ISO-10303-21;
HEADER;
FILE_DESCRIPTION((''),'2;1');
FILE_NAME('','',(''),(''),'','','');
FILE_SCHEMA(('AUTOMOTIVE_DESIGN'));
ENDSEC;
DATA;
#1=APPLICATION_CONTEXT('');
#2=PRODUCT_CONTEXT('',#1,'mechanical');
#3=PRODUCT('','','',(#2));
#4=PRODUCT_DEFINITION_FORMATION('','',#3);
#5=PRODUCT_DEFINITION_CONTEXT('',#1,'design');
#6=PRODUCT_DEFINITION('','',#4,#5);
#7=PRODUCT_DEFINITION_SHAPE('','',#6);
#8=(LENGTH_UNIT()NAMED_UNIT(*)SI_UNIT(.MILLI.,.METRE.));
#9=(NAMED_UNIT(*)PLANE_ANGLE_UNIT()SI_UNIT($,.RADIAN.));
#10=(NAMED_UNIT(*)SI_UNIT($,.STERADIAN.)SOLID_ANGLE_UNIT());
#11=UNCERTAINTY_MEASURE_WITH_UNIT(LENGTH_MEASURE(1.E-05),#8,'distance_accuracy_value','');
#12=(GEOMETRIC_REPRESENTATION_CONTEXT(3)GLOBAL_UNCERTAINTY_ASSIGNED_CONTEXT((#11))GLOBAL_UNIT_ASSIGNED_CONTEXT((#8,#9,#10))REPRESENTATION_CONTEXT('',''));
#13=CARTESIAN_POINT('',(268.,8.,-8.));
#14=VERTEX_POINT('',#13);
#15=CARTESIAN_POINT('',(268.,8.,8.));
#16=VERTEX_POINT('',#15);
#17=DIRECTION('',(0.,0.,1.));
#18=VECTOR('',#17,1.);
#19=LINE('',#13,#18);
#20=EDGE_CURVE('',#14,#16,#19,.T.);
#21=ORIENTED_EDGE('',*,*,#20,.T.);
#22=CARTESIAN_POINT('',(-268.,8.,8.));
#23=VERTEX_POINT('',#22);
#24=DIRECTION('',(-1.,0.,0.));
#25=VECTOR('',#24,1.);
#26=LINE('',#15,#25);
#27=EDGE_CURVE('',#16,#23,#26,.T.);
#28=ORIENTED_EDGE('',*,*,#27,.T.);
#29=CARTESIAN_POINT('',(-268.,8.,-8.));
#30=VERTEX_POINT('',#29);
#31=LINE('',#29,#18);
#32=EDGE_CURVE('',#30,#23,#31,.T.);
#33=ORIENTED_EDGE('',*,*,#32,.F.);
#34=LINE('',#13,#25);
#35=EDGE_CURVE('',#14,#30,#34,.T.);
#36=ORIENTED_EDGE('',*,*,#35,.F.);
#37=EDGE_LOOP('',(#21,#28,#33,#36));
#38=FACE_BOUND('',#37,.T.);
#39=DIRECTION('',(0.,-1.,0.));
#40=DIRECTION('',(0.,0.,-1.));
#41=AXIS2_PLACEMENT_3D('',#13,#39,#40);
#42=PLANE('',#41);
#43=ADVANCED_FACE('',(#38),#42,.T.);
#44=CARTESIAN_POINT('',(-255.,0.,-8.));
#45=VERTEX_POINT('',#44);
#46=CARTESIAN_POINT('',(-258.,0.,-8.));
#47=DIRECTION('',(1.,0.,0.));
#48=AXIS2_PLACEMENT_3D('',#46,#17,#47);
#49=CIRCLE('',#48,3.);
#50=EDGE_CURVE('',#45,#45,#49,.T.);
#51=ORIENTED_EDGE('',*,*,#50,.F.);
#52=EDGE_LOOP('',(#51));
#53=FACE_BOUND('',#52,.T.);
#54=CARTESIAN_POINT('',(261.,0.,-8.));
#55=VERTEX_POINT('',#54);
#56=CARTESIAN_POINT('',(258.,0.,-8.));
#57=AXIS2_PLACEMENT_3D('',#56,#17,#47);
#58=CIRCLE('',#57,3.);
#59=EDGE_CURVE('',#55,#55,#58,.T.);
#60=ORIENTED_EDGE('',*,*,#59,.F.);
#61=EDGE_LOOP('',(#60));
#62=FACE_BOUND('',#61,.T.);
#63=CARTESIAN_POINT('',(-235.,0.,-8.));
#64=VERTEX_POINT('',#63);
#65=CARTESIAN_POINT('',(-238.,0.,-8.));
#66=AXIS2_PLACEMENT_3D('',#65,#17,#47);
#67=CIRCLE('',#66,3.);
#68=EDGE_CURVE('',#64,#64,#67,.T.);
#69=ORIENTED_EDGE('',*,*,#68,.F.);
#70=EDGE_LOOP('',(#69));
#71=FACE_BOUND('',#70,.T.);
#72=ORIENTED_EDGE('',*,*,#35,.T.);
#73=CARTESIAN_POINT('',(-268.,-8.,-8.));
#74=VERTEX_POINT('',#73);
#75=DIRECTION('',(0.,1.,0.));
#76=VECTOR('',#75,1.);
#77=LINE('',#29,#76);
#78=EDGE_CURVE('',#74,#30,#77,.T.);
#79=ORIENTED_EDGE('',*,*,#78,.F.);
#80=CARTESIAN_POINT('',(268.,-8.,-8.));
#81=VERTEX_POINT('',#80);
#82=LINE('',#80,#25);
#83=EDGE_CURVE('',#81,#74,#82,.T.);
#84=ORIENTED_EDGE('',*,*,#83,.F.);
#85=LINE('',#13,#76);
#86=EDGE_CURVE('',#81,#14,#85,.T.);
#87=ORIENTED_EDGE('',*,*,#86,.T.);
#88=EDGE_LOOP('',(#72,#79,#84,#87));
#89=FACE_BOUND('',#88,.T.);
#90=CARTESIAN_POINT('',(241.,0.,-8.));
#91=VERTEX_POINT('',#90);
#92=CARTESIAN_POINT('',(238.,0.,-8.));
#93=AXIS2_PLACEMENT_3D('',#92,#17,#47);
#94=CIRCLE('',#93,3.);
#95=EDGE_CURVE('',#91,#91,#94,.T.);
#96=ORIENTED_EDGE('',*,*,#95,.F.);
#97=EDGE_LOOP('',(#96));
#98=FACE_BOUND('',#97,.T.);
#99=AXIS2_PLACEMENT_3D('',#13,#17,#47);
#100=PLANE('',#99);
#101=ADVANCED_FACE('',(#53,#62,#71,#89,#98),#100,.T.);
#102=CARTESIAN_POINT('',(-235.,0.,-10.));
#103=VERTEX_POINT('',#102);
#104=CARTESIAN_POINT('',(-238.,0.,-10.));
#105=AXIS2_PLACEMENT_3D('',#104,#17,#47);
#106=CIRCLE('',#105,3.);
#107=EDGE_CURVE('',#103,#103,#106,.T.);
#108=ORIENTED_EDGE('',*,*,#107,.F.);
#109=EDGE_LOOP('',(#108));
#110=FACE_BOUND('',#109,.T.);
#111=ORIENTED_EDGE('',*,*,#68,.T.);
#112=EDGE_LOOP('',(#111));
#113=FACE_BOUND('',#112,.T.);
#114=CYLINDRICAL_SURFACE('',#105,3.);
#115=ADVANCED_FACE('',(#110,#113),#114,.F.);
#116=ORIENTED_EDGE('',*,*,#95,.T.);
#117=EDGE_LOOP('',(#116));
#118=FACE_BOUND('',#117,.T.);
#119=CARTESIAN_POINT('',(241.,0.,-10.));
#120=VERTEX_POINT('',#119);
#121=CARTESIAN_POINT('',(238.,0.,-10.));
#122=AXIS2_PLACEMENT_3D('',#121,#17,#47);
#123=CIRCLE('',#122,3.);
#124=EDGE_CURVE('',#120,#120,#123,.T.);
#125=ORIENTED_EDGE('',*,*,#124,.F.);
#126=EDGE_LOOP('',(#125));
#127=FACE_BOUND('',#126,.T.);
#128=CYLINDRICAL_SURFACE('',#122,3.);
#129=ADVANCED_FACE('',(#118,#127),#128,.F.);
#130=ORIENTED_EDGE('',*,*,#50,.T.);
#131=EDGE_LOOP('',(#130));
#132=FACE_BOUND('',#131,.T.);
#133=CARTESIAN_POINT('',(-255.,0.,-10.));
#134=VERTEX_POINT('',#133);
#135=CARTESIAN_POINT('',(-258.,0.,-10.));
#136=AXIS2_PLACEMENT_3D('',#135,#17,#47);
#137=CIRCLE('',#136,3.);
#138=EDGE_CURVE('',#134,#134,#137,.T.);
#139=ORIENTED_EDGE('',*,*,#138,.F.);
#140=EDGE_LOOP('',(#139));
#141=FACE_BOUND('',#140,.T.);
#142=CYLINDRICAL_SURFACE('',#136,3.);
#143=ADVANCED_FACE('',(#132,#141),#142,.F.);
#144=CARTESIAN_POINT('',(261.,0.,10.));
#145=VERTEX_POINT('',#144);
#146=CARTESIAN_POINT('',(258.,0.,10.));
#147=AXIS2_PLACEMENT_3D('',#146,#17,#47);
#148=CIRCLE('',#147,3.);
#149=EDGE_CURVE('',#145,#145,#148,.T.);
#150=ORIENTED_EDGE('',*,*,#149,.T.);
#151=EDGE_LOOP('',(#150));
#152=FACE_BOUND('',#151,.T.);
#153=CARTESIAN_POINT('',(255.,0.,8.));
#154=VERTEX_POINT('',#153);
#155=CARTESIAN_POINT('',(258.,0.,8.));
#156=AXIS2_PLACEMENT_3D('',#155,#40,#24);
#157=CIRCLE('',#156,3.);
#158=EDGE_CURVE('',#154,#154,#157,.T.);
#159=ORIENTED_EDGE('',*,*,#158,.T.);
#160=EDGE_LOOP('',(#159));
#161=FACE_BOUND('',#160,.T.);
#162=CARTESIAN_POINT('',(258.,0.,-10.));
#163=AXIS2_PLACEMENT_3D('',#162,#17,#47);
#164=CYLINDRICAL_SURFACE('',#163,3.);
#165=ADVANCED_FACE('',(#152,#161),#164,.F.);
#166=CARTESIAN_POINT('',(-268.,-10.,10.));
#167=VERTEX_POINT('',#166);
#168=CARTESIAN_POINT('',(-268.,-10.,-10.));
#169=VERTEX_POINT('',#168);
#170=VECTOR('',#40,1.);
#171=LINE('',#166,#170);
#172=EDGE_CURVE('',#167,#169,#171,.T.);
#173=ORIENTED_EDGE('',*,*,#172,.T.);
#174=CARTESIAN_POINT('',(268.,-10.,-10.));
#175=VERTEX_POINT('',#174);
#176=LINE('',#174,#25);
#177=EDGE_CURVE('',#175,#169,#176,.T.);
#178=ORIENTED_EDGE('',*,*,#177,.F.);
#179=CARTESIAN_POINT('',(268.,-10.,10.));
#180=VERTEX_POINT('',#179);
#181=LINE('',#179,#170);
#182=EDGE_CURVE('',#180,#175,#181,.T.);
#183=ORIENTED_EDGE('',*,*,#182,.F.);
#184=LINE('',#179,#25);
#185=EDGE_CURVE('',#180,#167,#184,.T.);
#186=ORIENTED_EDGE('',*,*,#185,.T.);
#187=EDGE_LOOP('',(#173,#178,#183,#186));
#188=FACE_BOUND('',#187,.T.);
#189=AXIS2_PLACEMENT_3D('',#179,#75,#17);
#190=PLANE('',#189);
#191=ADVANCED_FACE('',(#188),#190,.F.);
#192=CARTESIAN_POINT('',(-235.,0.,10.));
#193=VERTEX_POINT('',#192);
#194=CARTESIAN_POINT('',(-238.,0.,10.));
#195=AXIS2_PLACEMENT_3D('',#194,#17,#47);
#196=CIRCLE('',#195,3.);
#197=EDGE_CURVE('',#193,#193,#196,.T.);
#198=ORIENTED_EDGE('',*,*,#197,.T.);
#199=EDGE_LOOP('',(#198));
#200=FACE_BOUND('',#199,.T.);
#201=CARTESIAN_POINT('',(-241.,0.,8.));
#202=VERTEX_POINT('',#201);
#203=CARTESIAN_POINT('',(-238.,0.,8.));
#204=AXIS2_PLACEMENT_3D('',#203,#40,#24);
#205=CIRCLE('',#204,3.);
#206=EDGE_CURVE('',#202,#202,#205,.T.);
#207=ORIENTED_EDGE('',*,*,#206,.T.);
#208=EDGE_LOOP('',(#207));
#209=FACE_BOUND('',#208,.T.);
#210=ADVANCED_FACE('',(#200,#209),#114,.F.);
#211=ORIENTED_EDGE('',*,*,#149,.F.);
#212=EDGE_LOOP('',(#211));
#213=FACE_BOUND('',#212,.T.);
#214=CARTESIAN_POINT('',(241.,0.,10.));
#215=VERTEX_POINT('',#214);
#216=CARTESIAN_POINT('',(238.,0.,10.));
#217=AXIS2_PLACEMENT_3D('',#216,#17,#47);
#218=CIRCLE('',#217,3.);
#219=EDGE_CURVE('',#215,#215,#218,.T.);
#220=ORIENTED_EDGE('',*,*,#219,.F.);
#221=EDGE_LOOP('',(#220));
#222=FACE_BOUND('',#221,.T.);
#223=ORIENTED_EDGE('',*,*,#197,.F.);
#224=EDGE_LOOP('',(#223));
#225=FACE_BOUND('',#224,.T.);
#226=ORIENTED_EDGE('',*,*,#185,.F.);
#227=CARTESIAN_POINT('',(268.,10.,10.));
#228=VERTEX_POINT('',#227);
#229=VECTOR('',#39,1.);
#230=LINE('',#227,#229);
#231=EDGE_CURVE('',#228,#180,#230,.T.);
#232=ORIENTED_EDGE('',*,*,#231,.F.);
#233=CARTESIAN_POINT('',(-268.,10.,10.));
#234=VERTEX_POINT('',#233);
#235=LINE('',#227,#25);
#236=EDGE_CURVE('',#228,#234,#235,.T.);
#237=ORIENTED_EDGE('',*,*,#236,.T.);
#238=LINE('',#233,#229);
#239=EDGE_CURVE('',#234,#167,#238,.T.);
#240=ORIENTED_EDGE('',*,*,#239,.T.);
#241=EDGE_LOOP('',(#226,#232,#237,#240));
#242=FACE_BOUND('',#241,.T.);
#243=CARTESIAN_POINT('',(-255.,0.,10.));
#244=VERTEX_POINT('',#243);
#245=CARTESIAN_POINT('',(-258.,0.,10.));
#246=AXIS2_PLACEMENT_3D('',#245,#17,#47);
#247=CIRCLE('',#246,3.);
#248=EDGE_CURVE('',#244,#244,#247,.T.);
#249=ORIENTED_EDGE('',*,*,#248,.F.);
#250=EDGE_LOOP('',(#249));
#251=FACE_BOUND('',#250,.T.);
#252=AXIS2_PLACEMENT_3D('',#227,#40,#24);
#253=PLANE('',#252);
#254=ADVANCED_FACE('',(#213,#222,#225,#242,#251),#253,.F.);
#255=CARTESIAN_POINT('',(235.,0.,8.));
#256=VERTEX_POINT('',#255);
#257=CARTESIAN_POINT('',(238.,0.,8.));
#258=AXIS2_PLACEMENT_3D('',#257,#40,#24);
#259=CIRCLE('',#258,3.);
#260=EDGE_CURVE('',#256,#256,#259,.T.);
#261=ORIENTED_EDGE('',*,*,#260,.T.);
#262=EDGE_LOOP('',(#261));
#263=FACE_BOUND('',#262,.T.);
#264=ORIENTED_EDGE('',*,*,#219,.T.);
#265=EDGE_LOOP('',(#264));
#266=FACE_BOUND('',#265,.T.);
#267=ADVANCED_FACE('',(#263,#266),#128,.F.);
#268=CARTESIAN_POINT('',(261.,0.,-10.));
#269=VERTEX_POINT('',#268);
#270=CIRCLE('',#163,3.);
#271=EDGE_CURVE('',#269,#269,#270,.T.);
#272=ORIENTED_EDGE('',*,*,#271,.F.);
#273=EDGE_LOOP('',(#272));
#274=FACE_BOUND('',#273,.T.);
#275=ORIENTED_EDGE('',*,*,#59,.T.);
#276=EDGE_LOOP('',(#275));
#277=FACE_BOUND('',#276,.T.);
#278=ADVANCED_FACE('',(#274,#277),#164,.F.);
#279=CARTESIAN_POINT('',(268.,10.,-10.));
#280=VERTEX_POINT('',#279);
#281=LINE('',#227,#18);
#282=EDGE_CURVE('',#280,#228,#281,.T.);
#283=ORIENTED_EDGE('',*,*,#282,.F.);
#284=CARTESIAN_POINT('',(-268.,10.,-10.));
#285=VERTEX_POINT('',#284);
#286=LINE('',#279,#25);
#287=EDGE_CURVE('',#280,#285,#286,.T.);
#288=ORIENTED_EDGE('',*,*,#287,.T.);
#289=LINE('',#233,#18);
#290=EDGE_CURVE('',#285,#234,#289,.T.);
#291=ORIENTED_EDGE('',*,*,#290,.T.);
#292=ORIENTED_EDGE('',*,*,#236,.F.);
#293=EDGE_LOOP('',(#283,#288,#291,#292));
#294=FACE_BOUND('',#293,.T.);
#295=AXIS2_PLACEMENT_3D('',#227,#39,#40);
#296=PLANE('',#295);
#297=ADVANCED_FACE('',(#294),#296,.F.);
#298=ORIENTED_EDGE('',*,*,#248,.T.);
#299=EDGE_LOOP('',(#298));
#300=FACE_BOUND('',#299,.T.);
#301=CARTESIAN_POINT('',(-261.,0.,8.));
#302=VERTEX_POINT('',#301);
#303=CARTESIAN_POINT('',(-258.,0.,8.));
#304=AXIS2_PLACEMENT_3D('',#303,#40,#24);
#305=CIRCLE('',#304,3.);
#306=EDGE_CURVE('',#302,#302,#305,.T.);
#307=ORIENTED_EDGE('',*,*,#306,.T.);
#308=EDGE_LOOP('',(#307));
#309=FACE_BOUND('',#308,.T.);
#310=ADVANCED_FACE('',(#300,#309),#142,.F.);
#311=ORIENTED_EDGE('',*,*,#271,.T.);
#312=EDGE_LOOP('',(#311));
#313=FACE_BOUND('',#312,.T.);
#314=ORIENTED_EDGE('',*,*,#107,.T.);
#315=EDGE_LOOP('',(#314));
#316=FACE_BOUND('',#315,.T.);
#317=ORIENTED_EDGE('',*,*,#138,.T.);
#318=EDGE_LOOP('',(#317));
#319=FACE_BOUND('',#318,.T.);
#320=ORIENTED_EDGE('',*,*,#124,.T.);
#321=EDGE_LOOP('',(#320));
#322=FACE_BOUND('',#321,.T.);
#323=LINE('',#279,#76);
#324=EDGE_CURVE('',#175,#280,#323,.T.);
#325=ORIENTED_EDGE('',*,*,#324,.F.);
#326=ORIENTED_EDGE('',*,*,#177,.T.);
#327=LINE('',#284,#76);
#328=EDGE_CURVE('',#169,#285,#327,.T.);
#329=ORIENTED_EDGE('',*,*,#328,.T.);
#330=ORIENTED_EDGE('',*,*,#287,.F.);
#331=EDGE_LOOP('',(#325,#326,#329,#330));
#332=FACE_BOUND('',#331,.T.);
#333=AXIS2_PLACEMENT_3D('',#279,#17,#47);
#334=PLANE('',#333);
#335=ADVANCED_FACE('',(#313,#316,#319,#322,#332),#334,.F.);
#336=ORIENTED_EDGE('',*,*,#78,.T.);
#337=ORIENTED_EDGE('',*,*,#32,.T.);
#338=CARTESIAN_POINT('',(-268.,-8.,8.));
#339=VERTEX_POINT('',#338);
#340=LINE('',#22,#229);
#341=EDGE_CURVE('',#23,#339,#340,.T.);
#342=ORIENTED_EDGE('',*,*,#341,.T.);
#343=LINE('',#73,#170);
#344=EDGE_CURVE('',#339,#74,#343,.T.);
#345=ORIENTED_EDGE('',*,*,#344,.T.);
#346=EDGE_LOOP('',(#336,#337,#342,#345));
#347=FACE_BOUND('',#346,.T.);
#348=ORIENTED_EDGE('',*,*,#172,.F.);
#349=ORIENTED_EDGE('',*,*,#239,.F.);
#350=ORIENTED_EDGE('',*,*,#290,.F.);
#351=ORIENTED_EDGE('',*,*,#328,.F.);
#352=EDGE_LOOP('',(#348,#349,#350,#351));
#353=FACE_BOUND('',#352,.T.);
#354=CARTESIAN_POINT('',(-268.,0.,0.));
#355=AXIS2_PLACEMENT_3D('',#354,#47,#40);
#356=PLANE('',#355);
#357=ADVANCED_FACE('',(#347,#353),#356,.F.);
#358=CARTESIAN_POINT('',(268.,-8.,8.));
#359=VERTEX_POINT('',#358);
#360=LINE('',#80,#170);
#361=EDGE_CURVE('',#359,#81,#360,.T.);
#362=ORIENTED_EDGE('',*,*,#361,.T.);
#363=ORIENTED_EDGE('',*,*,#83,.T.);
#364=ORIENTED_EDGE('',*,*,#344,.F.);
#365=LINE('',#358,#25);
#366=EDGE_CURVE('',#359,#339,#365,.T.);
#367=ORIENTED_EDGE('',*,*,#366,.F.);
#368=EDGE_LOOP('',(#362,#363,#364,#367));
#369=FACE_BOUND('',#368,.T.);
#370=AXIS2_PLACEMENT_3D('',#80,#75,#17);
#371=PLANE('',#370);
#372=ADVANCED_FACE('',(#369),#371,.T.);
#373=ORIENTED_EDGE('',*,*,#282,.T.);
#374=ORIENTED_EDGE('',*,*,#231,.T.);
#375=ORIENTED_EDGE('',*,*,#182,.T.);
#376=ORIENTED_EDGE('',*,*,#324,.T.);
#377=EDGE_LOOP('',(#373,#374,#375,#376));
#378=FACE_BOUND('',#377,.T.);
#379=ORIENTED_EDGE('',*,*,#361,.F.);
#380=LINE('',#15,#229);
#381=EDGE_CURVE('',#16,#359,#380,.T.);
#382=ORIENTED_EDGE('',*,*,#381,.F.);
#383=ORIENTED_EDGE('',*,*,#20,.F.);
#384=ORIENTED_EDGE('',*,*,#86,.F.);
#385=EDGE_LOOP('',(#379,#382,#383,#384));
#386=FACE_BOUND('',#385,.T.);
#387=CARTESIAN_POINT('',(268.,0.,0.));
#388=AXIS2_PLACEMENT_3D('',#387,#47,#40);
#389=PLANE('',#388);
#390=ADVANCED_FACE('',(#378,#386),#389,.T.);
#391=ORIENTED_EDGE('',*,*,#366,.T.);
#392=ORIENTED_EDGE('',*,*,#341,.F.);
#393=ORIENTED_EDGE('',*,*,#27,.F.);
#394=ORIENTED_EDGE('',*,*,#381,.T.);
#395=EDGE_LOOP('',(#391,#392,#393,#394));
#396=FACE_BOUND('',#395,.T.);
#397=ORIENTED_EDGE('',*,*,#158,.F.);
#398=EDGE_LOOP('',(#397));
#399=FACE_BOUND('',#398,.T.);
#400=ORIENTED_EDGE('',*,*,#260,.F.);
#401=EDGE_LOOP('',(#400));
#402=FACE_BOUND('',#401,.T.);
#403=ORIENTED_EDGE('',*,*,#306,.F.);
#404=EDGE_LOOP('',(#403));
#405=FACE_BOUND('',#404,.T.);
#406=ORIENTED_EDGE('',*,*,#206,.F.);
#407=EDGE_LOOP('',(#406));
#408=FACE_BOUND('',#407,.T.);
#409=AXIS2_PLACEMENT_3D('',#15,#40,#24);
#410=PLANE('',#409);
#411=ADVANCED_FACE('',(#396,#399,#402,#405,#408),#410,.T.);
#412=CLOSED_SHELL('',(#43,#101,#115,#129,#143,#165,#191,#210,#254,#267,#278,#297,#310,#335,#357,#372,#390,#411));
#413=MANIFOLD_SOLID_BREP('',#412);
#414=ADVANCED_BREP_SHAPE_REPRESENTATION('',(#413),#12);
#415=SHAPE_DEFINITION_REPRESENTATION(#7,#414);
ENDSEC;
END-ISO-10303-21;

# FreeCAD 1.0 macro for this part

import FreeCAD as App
import Part
import Sketcher
from FreeCAD import Vector


def add_polygon(sketch, points):
    """Adds a closed chain of lines whose ends are joined by coincident constraints."""
    first, n = sketch.GeometryCount, len(points)
    for a, b in zip(points, points[1:] + points[:1]):
        sketch.addGeometry(Part.LineSegment(App.Vector(*a, 0), App.Vector(*b, 0)), False)
    for i in range(n):
        sketch.addConstraint(Sketcher.Constraint("Coincident", first + i, 2, first + (i + 1) % n, 1))

doc = App.newDocument("Part")
body = doc.addObject("PartDesign::Body", "Body")

# Sketch on YZ plane
sketch1 = body.newObject("Sketcher::SketchObject", "Sketch")
sketch1.AttachmentSupport = (doc.getObject("YZ_Plane"), [""])
sketch1.MapMode = "FlatFace"
add_polygon(sketch1, [(10, 10), (-10, 10), (-10, -10), (10, -10)])  # lines 0-3
add_polygon(sketch1, [(-8, -8), (-8, 8), (8, 8), (8, -8)])  # lines 4-7
sketch1.addConstraint([
    Sketcher.Constraint("Horizontal", 0),
    Sketcher.Constraint("Vertical", 1),
    Sketcher.Constraint("Horizontal", 2),
    Sketcher.Constraint("Vertical", 3),
    Sketcher.Constraint("Vertical", 4),
    Sketcher.Constraint("Horizontal", 5),
    Sketcher.Constraint("Vertical", 6),
    Sketcher.Constraint("Horizontal", 7),
    Sketcher.Constraint("Symmetric", 0, 2, 2, 2, -1, 1),
    Sketcher.Constraint("Symmetric", 4, 2, 6, 2, -1, 1),
    Sketcher.Constraint("Equal", 2, 1),
    Sketcher.Constraint("Equal", 7, 4),
    Sketcher.Constraint("DistanceX", 0, 2, 0, 1, 20.0),
    Sketcher.Constraint("DistanceX", 5, 1, 5, 2, 16.0),
])
pad1 = body.newObject("PartDesign::Pad", "Pad")
pad1.Profile = sketch1
pad1.Length = 536
pad1.Midplane = True

# Sketch on XY plane
sketch2 = body.newObject("Sketcher::SketchObject", "Sketch001")
sketch2.AttachmentSupport = (doc.getObject("XY_Plane"), [""])
sketch2.MapMode = "FlatFace"
sketch2.AttachmentOffset = App.Placement(Vector(0, 0, 10), App.Rotation())
sketch2.addGeometry([
    Part.Circle(Vector(258, 0, 0), Vector(0, 0, 1), 3),
    Part.Circle(Vector(238, 0, 0), Vector(0, 0, 1), 3),
    Part.Circle(Vector(-238, 0, 0), Vector(0, 0, 1), 3),
    Part.Circle(Vector(-258, 0, 0), Vector(0, 0, 1), 3),
], False)
sketch2.addConstraint([
    Sketcher.Constraint("Equal", 0, 1),
    Sketcher.Constraint("Equal", 1, 2),
    Sketcher.Constraint("Equal", 2, 3),
    Sketcher.Constraint("Symmetric", 1, 3, 2, 3, -1, 1),
    Sketcher.Constraint("Symmetric", 0, 3, 3, 3, -1, 1),
    Sketcher.Constraint("PointOnObject", 0, 3, -1),
    Sketcher.Constraint("PointOnObject", 1, 3, -1),
    Sketcher.Constraint("Diameter", 0, 6.0),
    Sketcher.Constraint("DistanceX", -1, 1, 0, 3, 258.0),
    Sketcher.Constraint("DistanceX", -1, 1, 1, 3, 238.0),
])
pocket1 = body.newObject("PartDesign::Pocket", "Pocket")
pocket1.Profile = sketch2
pocket1.Type = "ThroughAll"

doc.recompute()
